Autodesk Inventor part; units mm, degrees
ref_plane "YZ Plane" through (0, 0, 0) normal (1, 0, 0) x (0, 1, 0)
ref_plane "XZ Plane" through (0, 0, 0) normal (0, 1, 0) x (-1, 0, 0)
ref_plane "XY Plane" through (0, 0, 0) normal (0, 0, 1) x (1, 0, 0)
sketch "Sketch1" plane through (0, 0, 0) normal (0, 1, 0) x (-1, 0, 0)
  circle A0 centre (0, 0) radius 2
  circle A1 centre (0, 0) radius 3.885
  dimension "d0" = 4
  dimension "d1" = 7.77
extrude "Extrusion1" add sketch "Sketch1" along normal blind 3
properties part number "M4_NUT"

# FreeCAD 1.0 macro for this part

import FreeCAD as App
import Part
import Sketcher

V = App.Vector

doc = App.newDocument("Part")
body = doc.addObject("PartDesign::Body", "Body")

sketch1 = body.newObject("Sketcher::SketchObject", "Sketch")
sketch1.AttachmentSupport = (doc.getObject("XZ_Plane"), [""])
sketch1.MapMode = "FlatFace"
sketch1.addGeometry(Part.Circle(V(0, 0, 0), V(0, 0, 1), 3.9), False)
sketch1.addGeometry(Part.Circle(V(0, 0, 0), V(0, 0, 1), 2), False)
sketch1.addConstraint(Sketcher.Constraint("Coincident", 0, 3, -1, 1))
sketch1.addConstraint(Sketcher.Constraint("Coincident", 1, 3, -1, 1))
sketch1.addConstraint(Sketcher.Constraint("Diameter", 1, 4.0))
sketch1.addConstraint(Sketcher.Constraint("Diameter", 0, 7.77))
pad1 = body.newObject("PartDesign::Pad", "Pad")
pad1.Profile = sketch1
pad1.Length = 3
pad1.Reversed = True

doc.recompute()
